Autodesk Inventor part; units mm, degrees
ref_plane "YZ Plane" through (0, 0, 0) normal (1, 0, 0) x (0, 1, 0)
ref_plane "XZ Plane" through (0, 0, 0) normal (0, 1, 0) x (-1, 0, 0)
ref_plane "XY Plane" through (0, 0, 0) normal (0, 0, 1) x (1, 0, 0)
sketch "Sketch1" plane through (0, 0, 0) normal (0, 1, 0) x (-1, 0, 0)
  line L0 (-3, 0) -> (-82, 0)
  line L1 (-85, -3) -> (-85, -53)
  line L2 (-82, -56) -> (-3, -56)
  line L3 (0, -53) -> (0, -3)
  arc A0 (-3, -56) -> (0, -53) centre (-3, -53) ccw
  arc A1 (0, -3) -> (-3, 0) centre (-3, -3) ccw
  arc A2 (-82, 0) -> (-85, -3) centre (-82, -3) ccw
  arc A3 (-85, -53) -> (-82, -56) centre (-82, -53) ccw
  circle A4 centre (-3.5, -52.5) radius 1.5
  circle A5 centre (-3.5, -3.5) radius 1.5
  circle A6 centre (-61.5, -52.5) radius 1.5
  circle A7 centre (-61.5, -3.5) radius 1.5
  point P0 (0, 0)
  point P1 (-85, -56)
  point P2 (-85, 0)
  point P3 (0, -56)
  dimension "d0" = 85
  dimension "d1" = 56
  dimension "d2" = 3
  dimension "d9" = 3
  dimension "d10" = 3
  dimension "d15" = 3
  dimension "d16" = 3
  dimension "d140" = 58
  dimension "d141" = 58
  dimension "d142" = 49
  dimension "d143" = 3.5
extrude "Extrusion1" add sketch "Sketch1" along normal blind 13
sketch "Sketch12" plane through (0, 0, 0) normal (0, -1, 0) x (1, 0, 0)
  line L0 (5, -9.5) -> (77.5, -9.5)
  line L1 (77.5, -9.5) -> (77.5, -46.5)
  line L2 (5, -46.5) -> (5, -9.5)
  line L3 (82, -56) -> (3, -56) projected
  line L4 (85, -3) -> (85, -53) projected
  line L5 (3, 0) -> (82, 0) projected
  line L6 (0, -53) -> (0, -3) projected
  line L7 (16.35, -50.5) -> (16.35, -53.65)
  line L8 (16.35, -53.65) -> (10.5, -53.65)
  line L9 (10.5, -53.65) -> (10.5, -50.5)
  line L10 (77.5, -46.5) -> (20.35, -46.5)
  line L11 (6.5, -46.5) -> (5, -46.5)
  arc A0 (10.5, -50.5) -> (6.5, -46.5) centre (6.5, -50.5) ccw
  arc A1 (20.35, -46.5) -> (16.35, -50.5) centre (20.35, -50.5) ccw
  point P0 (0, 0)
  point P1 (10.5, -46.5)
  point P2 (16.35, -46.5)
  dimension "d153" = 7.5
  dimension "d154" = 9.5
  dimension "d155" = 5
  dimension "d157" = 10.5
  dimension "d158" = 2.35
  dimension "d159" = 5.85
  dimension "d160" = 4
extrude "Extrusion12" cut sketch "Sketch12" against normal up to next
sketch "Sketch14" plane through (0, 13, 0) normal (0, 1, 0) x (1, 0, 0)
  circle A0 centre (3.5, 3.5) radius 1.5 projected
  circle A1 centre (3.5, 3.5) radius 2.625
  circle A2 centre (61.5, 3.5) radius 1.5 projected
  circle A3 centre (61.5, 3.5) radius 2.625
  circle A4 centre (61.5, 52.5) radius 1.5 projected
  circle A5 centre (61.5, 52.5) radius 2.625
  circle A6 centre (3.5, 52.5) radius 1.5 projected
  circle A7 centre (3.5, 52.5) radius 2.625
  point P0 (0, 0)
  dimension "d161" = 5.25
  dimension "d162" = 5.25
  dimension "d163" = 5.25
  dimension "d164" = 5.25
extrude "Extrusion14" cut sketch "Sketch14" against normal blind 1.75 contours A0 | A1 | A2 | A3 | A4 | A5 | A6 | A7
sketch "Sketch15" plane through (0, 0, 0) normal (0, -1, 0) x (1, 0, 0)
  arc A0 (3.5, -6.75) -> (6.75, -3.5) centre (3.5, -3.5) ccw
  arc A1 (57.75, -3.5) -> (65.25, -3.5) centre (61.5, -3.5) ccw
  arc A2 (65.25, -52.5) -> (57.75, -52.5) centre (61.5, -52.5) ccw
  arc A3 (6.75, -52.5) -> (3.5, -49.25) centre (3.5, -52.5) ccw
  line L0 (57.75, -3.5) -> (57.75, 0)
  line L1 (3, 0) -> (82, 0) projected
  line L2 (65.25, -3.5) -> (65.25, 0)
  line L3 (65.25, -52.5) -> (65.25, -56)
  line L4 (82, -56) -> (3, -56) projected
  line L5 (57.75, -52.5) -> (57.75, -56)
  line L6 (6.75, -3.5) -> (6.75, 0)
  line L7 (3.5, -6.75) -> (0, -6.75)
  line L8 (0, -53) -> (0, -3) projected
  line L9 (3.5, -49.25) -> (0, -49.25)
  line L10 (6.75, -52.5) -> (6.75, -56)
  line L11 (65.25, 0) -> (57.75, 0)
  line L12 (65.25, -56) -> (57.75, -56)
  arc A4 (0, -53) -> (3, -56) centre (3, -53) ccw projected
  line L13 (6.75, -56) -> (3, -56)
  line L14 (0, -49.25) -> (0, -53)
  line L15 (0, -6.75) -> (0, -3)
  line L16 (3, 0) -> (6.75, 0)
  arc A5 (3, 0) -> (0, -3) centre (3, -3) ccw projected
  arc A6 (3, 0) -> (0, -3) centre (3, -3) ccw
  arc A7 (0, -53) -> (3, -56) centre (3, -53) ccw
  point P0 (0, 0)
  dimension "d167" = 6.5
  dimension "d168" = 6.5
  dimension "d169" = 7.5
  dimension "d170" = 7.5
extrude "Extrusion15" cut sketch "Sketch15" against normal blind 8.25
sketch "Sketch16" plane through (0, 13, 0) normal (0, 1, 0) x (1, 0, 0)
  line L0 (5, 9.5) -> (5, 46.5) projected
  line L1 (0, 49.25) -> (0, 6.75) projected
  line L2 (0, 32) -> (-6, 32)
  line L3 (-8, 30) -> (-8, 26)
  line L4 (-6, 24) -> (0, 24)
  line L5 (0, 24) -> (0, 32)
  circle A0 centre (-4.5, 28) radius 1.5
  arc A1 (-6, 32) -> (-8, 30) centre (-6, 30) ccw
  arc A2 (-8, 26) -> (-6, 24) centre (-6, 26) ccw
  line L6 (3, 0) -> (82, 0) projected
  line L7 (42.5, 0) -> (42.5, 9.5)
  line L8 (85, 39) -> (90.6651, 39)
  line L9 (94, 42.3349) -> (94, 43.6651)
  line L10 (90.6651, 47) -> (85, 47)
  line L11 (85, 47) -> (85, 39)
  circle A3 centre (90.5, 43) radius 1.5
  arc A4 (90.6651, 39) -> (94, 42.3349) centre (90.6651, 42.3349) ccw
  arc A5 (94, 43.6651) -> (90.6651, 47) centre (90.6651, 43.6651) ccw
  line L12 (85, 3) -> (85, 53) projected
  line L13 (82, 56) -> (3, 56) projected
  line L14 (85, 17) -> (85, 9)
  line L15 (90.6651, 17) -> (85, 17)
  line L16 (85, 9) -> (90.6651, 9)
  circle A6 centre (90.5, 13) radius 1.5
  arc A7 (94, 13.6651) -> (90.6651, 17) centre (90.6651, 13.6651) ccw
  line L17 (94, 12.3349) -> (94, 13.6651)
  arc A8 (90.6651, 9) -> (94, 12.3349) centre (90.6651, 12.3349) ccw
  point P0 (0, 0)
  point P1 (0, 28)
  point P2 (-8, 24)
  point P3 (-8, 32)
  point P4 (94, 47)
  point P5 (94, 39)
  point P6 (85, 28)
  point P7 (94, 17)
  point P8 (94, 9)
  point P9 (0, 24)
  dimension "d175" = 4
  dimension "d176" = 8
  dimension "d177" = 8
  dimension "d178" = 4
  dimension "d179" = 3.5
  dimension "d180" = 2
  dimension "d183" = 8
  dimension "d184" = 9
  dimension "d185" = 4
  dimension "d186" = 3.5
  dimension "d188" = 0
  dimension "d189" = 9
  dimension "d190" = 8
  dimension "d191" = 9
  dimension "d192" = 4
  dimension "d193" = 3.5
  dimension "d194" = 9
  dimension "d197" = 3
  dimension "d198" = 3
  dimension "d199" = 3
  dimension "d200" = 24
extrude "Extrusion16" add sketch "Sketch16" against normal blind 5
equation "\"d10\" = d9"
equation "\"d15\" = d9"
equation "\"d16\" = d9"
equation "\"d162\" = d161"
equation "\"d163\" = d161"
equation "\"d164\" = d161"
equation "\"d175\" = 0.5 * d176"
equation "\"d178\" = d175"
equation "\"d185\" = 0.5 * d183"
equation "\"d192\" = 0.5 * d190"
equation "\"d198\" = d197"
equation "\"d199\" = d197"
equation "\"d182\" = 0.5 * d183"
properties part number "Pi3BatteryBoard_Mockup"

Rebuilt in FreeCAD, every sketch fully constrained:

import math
import FreeCAD as App
import Part
import Sketcher
from FreeCAD import Vector
Q = App.Units.Quantity

doc = App.newDocument("Part")
params = doc.addObject("Spreadsheet::Sheet", "Params")
for row, (alias, value) in enumerate([
    ("sketch1_diameter", "3 mm"),
    ("sketch1_radius", "3 mm"),
    ("pad1_length", "13 mm"),
    ("sketch2_radius", "4 mm"),
    ("sketch2_width", "5.85 mm"),
    ("sketch2_height", "37 mm"),
    ("sketch2_width2", "72.5 mm"),
    ("sketch2_height2", "3.15 mm"),
    ("sketch3_diameter", "5.25 mm"),
    ("pocket2_length", "1.75 mm"),
    ("sketch4_radius", "3.25 mm"),
    ("sketch4_radius2", "3.75 mm"),
    ("sketch4_radius3", "3 mm"),
    ("sketch4_width", "3.5 mm"),
    ("pocket3_length", "8.25 mm"),
    ("sketch5_diameter", "3 mm"),
    ("sketch5_radius", "2 mm"),
    ("sketch5_height", "8 mm"),
    ("pad2_length", "5 mm"),
], start=1):
    params.set(f"A{row}", alias)
    params.set(f"B{row}", "=" + value)
    params.setAlias(f"B{row}", alias)

body = doc.addObject("PartDesign::Body", "Body")

# Sketch on XZ plane
sketch1 = doc.addObject("Sketcher::SketchObject", "Sketch")
body.addObject(sketch1)
sketch1.AttachmentSupport = (doc.XZ_Plane, [""])
sketch1.MapMode = "FlatFace"
sketch1.addGeometry([
    Part.ArcOfCircle(Part.Circle(Vector(3, -3, 0), Vector(0, 0, 1), 3), math.radians(90), math.radians(180)),  # 0
    Part.LineSegment(Vector(3, 0, 0), Vector(82, 0, 0)),  # 1
    Part.ArcOfCircle(Part.Circle(Vector(82, -3, 0), Vector(0, 0, 1), 3), math.radians(0), math.radians(90)),  # 2
    Part.LineSegment(Vector(85, -3, 0), Vector(85, -53, 0)),  # 3
    Part.ArcOfCircle(Part.Circle(Vector(82, -53, 0), Vector(0, 0, 1), 3), math.radians(-90), math.radians(0)),  # 4
    Part.LineSegment(Vector(82, -56, 0), Vector(3, -56, 0)),  # 5
    Part.ArcOfCircle(Part.Circle(Vector(3, -53, 0), Vector(0, 0, 1), 3), math.radians(180), math.radians(270)),  # 6
    Part.LineSegment(Vector(0, -53, 0), Vector(0, -3, 0)),  # 7
    Part.Circle(Vector(61.5, -52.5, 0), Vector(0, 0, 1), 1.5),  # 8
    Part.Circle(Vector(3.5, -52.5, 0), Vector(0, 0, 1), 1.5),  # 9
    Part.Circle(Vector(61.5, -3.5, 0), Vector(0, 0, 1), 1.5),  # 10
    Part.Circle(Vector(3.5, -3.5, 0), Vector(0, 0, 1), 1.5),  # 11
], False)
sketch1.addConstraint([
    Sketcher.Constraint("Tangent", 0, 1, 1, 1),
    Sketcher.Constraint("Tangent", 1, 2, 2, 2),
    Sketcher.Constraint("Tangent", 2, 1, 3, 1),
    Sketcher.Constraint("Tangent", 3, 2, 4, 2),
    Sketcher.Constraint("Tangent", 4, 1, 5, 1),
    Sketcher.Constraint("Tangent", 5, 2, 6, 2),
    Sketcher.Constraint("Tangent", 6, 1, 7, 1),
    Sketcher.Constraint("Tangent", 7, 2, 0, 2),
    Sketcher.Constraint("Horizontal", 1),
    Sketcher.Constraint("Vertical", 3),
    Sketcher.Constraint("Horizontal", 5),
    Sketcher.Constraint("Vertical", 7),
    Sketcher.Constraint("Equal", 0, 2),
    Sketcher.Constraint("Equal", 2, 4),
    Sketcher.Constraint("Equal", 4, 6),
    Sketcher.Constraint("Equal", 8, 9),
    Sketcher.Constraint("Equal", 9, 10),
    Sketcher.Constraint("Equal", 10, 11),
    Sketcher.Constraint("PointOnObject", 0, 1, -1),
    Sketcher.Constraint("PointOnObject", 6, 1, -2),
    Sketcher.Constraint("Horizontal", 8, 3, 9, 3),
    Sketcher.Constraint("Horizontal", 10, 3, 11, 3),
    Sketcher.Constraint("Vertical", 8, 3, 10, 3),
    Sketcher.Constraint("Vertical", 9, 3, 11, 3),
    Sketcher.Constraint("Diameter", 8, Q("3 mm")),
    Sketcher.Constraint("Radius", 0, Q("3 mm")),
    Sketcher.Constraint("DistanceX", -1, 1, 2, 1, Q("85 mm")),
    Sketcher.Constraint("DistanceY", 4, 1, -1, 1, Q("56 mm")),
    Sketcher.Constraint("DistanceX", 9, 3, 8, 3, Q("58 mm")),
    Sketcher.Constraint("DistanceY", 8, 3, 10, 3, Q("49 mm")),
    Sketcher.Constraint("DistanceX", -1, 1, 9, 3, Q("3.5 mm")),
    Sketcher.Constraint("DistanceY", 10, 3, -1, 1, Q("3.5 mm")),
])
sketch1.setExpression("Constraints[24]", "Params.sketch1_diameter")
sketch1.setExpression("Constraints[25]", "Params.sketch1_radius")
pad1 = doc.addObject("PartDesign::Pad", "Pad")
body.addObject(pad1)
pad1.Profile = sketch1
pad1.setExpression("Length", "Params.pad1_length")
pad1.Reversed = True

# Sketch on XZ plane
sketch2 = doc.addObject("Sketcher::SketchObject", "Sketch001")
body.addObject(sketch2)
sketch2.AttachmentSupport = (doc.XZ_Plane, [""])
sketch2.MapMode = "FlatFace"
sketch2.addGeometry([
    Part.LineSegment(Vector(77.5, -9.5, 0), Vector(5, -9.5, 0)),  # 0
    Part.LineSegment(Vector(5, -9.5, 0), Vector(5, -46.5, 0)),  # 1
    Part.LineSegment(Vector(5, -46.5, 0), Vector(6.5, -46.5, 0)),  # 2
    Part.ArcOfCircle(Part.Circle(Vector(6.5, -50.5, 0), Vector(0, 0, 1), 4), math.radians(0), math.radians(90)),  # 3
    Part.LineSegment(Vector(10.5, -50.5, 0), Vector(10.5, -53.65, 0)),  # 4
    Part.LineSegment(Vector(10.5, -53.65, 0), Vector(16.35, -53.65, 0)),  # 5
    Part.LineSegment(Vector(16.35, -53.65, 0), Vector(16.35, -50.5, 0)),  # 6
    Part.ArcOfCircle(Part.Circle(Vector(20.35, -50.5, 0), Vector(0, 0, 1), 4), math.radians(90), math.radians(180)),  # 7
    Part.LineSegment(Vector(20.35, -46.5, 0), Vector(77.5, -46.5, 0)),  # 8
    Part.LineSegment(Vector(77.5, -46.5, 0), Vector(77.5, -9.5, 0)),  # 9
], False)
sketch2.addConstraint([
    Sketcher.Constraint("Coincident", 0, 2, 1, 1),
    Sketcher.Constraint("Coincident", 1, 2, 2, 1),
    Sketcher.Constraint("Tangent", 2, 2, 3, 2),
    Sketcher.Constraint("Tangent", 3, 1, 4, 1),
    Sketcher.Constraint("Coincident", 4, 2, 5, 1),
    Sketcher.Constraint("Coincident", 5, 2, 6, 1),
    Sketcher.Constraint("Tangent", 6, 2, 7, 2),
    Sketcher.Constraint("Tangent", 7, 1, 8, 1),
    Sketcher.Constraint("Coincident", 8, 2, 9, 1),
    Sketcher.Constraint("Coincident", 9, 2, 0, 1),
    Sketcher.Constraint("Horizontal", 0),
    Sketcher.Constraint("Vertical", 1),
    Sketcher.Constraint("Horizontal", 2),
    Sketcher.Constraint("Vertical", 4),
    Sketcher.Constraint("Horizontal", 5),
    Sketcher.Constraint("Vertical", 6),
    Sketcher.Constraint("Horizontal", 8),
    Sketcher.Constraint("Vertical", 9),
    Sketcher.Constraint("Equal", 3, 7),
    Sketcher.Constraint("Horizontal", 3, 3, 7, 3),
    Sketcher.Constraint("Radius", 3, Q("4 mm")),
    Sketcher.Constraint("DistanceX", -1, 1, 0, 2, Q("5 mm")),
    Sketcher.Constraint("DistanceX", 5, 1, 5, 2, Q("5.85 mm")),
    Sketcher.Constraint("DistanceY", 0, 2, -1, 1, Q("9.5 mm")),
    Sketcher.Constraint("DistanceX", -1, 1, 3, 1, Q("10.5 mm")),
    Sketcher.Constraint("DistanceY", 1, 2, 1, 1, Q("37 mm")),
    Sketcher.Constraint("DistanceX", 0, 2, 0, 1, Q("72.5 mm")),
    Sketcher.Constraint("DistanceY", 4, 2, 4, 1, Q("3.15 mm")),
])
sketch2.setExpression("Constraints[20]", "Params.sketch2_radius")
sketch2.setExpression("Constraints[22]", "Params.sketch2_width")
sketch2.setExpression("Constraints[25]", "Params.sketch2_height")
sketch2.setExpression("Constraints[26]", "Params.sketch2_width2")
sketch2.setExpression("Constraints[27]", "Params.sketch2_height2")
pocket1 = doc.addObject("PartDesign::Pocket", "Pocket")
body.addObject(pocket1)
pocket1.Profile = sketch2
pocket1.Type = "UpToFirst"

# Sketch on XZ plane
sketch3 = doc.addObject("Sketcher::SketchObject", "Sketch002")
body.addObject(sketch3)
sketch3.AttachmentSupport = (doc.XZ_Plane, [""])
sketch3.MapMode = "FlatFace"
sketch3.AttachmentOffset = App.Placement(Vector(0, 0, -13), App.Rotation())
sketch3.addGeometry([
    Part.Circle(Vector(3.5, -3.5, 0), Vector(0, 0, 1), 2.625),
    Part.Circle(Vector(61.5, -3.5, 0), Vector(0, 0, 1), 2.625),
    Part.Circle(Vector(61.5, -52.5, 0), Vector(0, 0, 1), 2.625),
    Part.Circle(Vector(3.5, -52.5, 0), Vector(0, 0, 1), 2.625),
], False)
sketch3.addConstraint([
    Sketcher.Constraint("Equal", 0, 1),
    Sketcher.Constraint("Equal", 1, 2),
    Sketcher.Constraint("Equal", 2, 3),
    Sketcher.Constraint("Horizontal", 0, 3, 1, 3),
    Sketcher.Constraint("Horizontal", 2, 3, 3, 3),
    Sketcher.Constraint("Vertical", 1, 3, 2, 3),
    Sketcher.Constraint("Vertical", 0, 3, 3, 3),
    Sketcher.Constraint("Diameter", 0, Q("5.25 mm")),
    Sketcher.Constraint("DistanceX", 0, 3, 1, 3, Q("58 mm")),
    Sketcher.Constraint("DistanceY", 2, 3, 1, 3, Q("49 mm")),
    Sketcher.Constraint("DistanceX", -1, 1, 0, 3, Q("3.5 mm")),
    Sketcher.Constraint("DistanceY", 0, 3, -1, 1, Q("3.5 mm")),
])
sketch3.setExpression("Constraints[7]", "Params.sketch3_diameter")
pocket2 = doc.addObject("PartDesign::Pocket", "Pocket001")
body.addObject(pocket2)
pocket2.Profile = sketch3
pocket2.setExpression("Length", "Params.pocket2_length")
pocket2.Reversed = True

# Sketch on XZ plane
sketch4 = doc.addObject("Sketcher::SketchObject", "Sketch003")
body.addObject(sketch4)
sketch4.AttachmentSupport = (doc.XZ_Plane, [""])
sketch4.MapMode = "FlatFace"
sketch4.addGeometry([
    Part.LineSegment(Vector(0, -6.75, 0), Vector(3.5, -6.75, 0)),  # 0
    Part.ArcOfCircle(Part.Circle(Vector(3.5, -3.5, 0), Vector(0, 0, 1), 3.25), math.radians(-90), math.radians(0)),  # 1
    Part.LineSegment(Vector(6.75, -3.5, 0), Vector(6.75, 0, 0)),  # 2
    Part.LineSegment(Vector(6.75, 0, 0), Vector(3, 0, 0)),  # 3
    Part.ArcOfCircle(Part.Circle(Vector(3, -3, 0), Vector(0, 0, 1), 3), math.radians(90), math.radians(180)),  # 4
    Part.LineSegment(Vector(0, -3, 0), Vector(0, -6.75, 0)),  # 5
    Part.LineSegment(Vector(57.75, -52.5, 0), Vector(57.75, -56, 0)),  # 6
    Part.LineSegment(Vector(57.75, -56, 0), Vector(65.25, -56, 0)),  # 7
    Part.LineSegment(Vector(65.25, -56, 0), Vector(65.25, -52.5, 0)),  # 8
    Part.ArcOfCircle(Part.Circle(Vector(61.5, -52.5, 0), Vector(0, 0, 1), 3.75), math.radians(0), math.radians(180)),  # 9
    Part.LineSegment(Vector(3.5, -49.25, 0), Vector(0, -49.25, 0)),  # 10
    Part.LineSegment(Vector(0, -49.25, 0), Vector(0, -53, 0)),  # 11
    Part.ArcOfCircle(Part.Circle(Vector(3, -53, 0), Vector(0, 0, 1), 3), math.radians(180), math.radians(270)),  # 12
    Part.LineSegment(Vector(3, -56, 0), Vector(6.75, -56, 0)),  # 13
    Part.LineSegment(Vector(6.75, -56, 0), Vector(6.75, -52.5, 0)),  # 14
    Part.ArcOfCircle(Part.Circle(Vector(3.5, -52.5, 0), Vector(0, 0, 1), 3.25), math.radians(0), math.radians(90)),  # 15
    Part.LineSegment(Vector(65.25, 0, 0), Vector(57.75, 0, 0)),  # 16
    Part.LineSegment(Vector(57.75, 0, 0), Vector(57.75, -3.5, 0)),  # 17
    Part.ArcOfCircle(Part.Circle(Vector(61.5, -3.5, 0), Vector(0, 0, 1), 3.75), math.radians(180), math.radians(360)),  # 18
    Part.LineSegment(Vector(65.25, -3.5, 0), Vector(65.25, 0, 0)),  # 19
], False)
sketch4.addConstraint([
    Sketcher.Constraint("Tangent", 0, 2, 1, 1),
    Sketcher.Constraint("Tangent", 1, 2, 2, 1),
    Sketcher.Constraint("Coincident", 2, 2, 3, 1),
    Sketcher.Constraint("Tangent", 3, 2, 4, 1),
    Sketcher.Constraint("Tangent", 4, 2, 5, 1),
    Sketcher.Constraint("Coincident", 5, 2, 0, 1),
    Sketcher.Constraint("Coincident", 6, 2, 7, 1),
    Sketcher.Constraint("Coincident", 7, 2, 8, 1),
    Sketcher.Constraint("Tangent", 8, 2, 9, 1),
    Sketcher.Constraint("Tangent", 9, 2, 6, 1),
    Sketcher.Constraint("Coincident", 10, 2, 11, 1),
    Sketcher.Constraint("Tangent", 11, 2, 12, 1),
    Sketcher.Constraint("Tangent", 12, 2, 13, 1),
    Sketcher.Constraint("Coincident", 13, 2, 14, 1),
    Sketcher.Constraint("Tangent", 14, 2, 15, 1),
    Sketcher.Constraint("Tangent", 15, 2, 10, 1),
    Sketcher.Constraint("Coincident", 16, 2, 17, 1),
    Sketcher.Constraint("Tangent", 17, 2, 18, 1),
    Sketcher.Constraint("Tangent", 18, 2, 19, 1),
    Sketcher.Constraint("Coincident", 19, 2, 16, 1),
    Sketcher.Constraint("Horizontal", 0),
    Sketcher.Constraint("Vertical", 2),
    Sketcher.Constraint("Horizontal", 3),
    Sketcher.Constraint("Vertical", 5),
    Sketcher.Constraint("Vertical", 6),
    Sketcher.Constraint("Horizontal", 7),
    Sketcher.Constraint("Vertical", 8),
    Sketcher.Constraint("Horizontal", 10),
    Sketcher.Constraint("Vertical", 11),
    Sketcher.Constraint("Horizontal", 13),
    Sketcher.Constraint("Vertical", 14),
    Sketcher.Constraint("Horizontal", 16),
    Sketcher.Constraint("Vertical", 17),
    Sketcher.Constraint("Vertical", 19),
    Sketcher.Constraint("Equal", 4, 12),
    Sketcher.Constraint("Equal", 1, 15),
    Sketcher.Constraint("Equal", 9, 18),
    Sketcher.Constraint("PointOnObject", 2, 2, -1),
    Sketcher.Constraint("PointOnObject", 4, 2, -2),
    Sketcher.Constraint("PointOnObject", 10, 2, -2),
    Sketcher.Constraint("PointOnObject", 16, 2, -1),
    Sketcher.Constraint("Horizontal", 9, 3, 15, 3),
    Sketcher.Constraint("Horizontal", 1, 3, 18, 3),
    Sketcher.Constraint("Horizontal", 7, 2, 12, 2),
    Sketcher.Constraint("Vertical", 1, 3, 15, 3),
    Sketcher.Constraint("Vertical", 9, 3, 18, 3),
    Sketcher.Constraint("Equal", 10, 2),
    Sketcher.Constraint("Equal", 2, 6),
    Sketcher.Constraint("Radius", 1, Q("3.25 mm")),
    Sketcher.Constraint("Radius", 9, Q("3.75 mm")),
    Sketcher.Constraint("Radius", 4, Q("3 mm")),
    Sketcher.Constraint("DistanceX", 0, 1, 0, 2, Q("3.5 mm")),
    Sketcher.Constraint("DistanceY", 12, 3, -1, 1, Q("53 mm")),
    Sketcher.Constraint("DistanceX", 1, 3, 9, 3, Q("58 mm")),
])
sketch4.setExpression("Constraints[48]", "Params.sketch4_radius")
sketch4.setExpression("Constraints[49]", "Params.sketch4_radius2")
sketch4.setExpression("Constraints[50]", "Params.sketch4_radius3")
sketch4.setExpression("Constraints[51]", "Params.sketch4_width")
pocket3 = doc.addObject("PartDesign::Pocket", "Pocket002")
body.addObject(pocket3)
pocket3.Profile = sketch4
pocket3.setExpression("Length", "Params.pocket3_length")

# Sketch on XZ plane
sketch5 = doc.addObject("Sketcher::SketchObject", "Sketch004")
body.addObject(sketch5)
sketch5.AttachmentSupport = (doc.XZ_Plane, [""])
sketch5.MapMode = "FlatFace"
sketch5.AttachmentOffset = App.Placement(Vector(0, 0, -13), App.Rotation())
sketch5.addGeometry([
    Part.LineSegment(Vector(0, -24, 0), Vector(0, -32, 0)),  # 0
    Part.LineSegment(Vector(0, -32, 0), Vector(-6, -32, 0)),  # 1
    Part.ArcOfCircle(Part.Circle(Vector(-6, -30, 0), Vector(0, 0, 1), 2), math.radians(180), math.radians(270)),  # 2
    Part.LineSegment(Vector(-8, -30, 0), Vector(-8, -26, 0)),  # 3
    Part.ArcOfCircle(Part.Circle(Vector(-6, -26, 0), Vector(0, 0, 1), 2), math.radians(90), math.radians(180)),  # 4
    Part.LineSegment(Vector(-6, -24, 0), Vector(0, -24, 0)),  # 5
    Part.Circle(Vector(-4.5, -28, 0), Vector(0, 0, 1), 1.5),  # 6
    Part.LineSegment(Vector(85, -47, 0), Vector(85, -39, 0)),  # 7
    Part.LineSegment(Vector(85, -39, 0), Vector(90.6651, -39, 0)),  # 8
    Part.ArcOfCircle(Part.Circle(Vector(90.6651, -42.3349, 0), Vector(0, 0, 1), 3.3349), math.radians(0), math.radians(90)),  # 9
    Part.LineSegment(Vector(94, -42.3349, 0), Vector(94, -43.6651, 0)),  # 10
    Part.ArcOfCircle(Part.Circle(Vector(90.6651, -43.6651, 0), Vector(0, 0, 1), 3.3349), math.radians(-90), math.radians(0)),  # 11
    Part.LineSegment(Vector(90.6651, -47, 0), Vector(85, -47, 0)),  # 12
    Part.Circle(Vector(90.5, -43, 0), Vector(0, 0, 1), 1.5),  # 13
    Part.LineSegment(Vector(90.6651, -17, 0), Vector(85, -17, 0)),  # 14
    Part.LineSegment(Vector(85, -17, 0), Vector(85, -9, 0)),  # 15
    Part.LineSegment(Vector(85, -9, 0), Vector(90.6651, -9, 0)),  # 16
    Part.ArcOfCircle(Part.Circle(Vector(90.6651, -12.3349, 0), Vector(0, 0, 1), 3.3349), math.radians(0), math.radians(90)),  # 17
    Part.LineSegment(Vector(94, -12.3349, 0), Vector(94, -13.6651, 0)),  # 18
    Part.ArcOfCircle(Part.Circle(Vector(90.6651, -13.6651, 0), Vector(0, 0, 1), 3.3349), math.radians(-90), math.radians(0)),  # 19
    Part.Circle(Vector(90.5, -13, 0), Vector(0, 0, 1), 1.5),  # 20
], False)
sketch5.addConstraint([
    Sketcher.Constraint("Coincident", 0, 2, 1, 1),
    Sketcher.Constraint("Tangent", 1, 2, 2, 2),
    Sketcher.Constraint("Tangent", 2, 1, 3, 1),
    Sketcher.Constraint("Tangent", 3, 2, 4, 2),
    Sketcher.Constraint("Tangent", 4, 1, 5, 1),
    Sketcher.Constraint("Coincident", 5, 2, 0, 1),
    Sketcher.Constraint("Coincident", 7, 2, 8, 1),
    Sketcher.Constraint("Tangent", 8, 2, 9, 2),
    Sketcher.Constraint("Tangent", 9, 1, 10, 1),
    Sketcher.Constraint("Tangent", 10, 2, 11, 2),
    Sketcher.Constraint("Tangent", 11, 1, 12, 1),
    Sketcher.Constraint("Coincident", 12, 2, 7, 1),
    Sketcher.Constraint("Coincident", 14, 2, 15, 1),
    Sketcher.Constraint("Coincident", 15, 2, 16, 1),
    Sketcher.Constraint("Tangent", 16, 2, 17, 2),
    Sketcher.Constraint("Tangent", 17, 1, 18, 1),
    Sketcher.Constraint("Tangent", 18, 2, 19, 2),
    Sketcher.Constraint("Tangent", 19, 1, 14, 1),
    Sketcher.Constraint("Vertical", 0),
    Sketcher.Constraint("Horizontal", 1),
    Sketcher.Constraint("Vertical", 3),
    Sketcher.Constraint("Horizontal", 5),
    Sketcher.Constraint("Vertical", 7),
    Sketcher.Constraint("Horizontal", 8),
    Sketcher.Constraint("Vertical", 10),
    Sketcher.Constraint("Horizontal", 12),
    Sketcher.Constraint("Horizontal", 14),
    Sketcher.Constraint("Vertical", 15),
    Sketcher.Constraint("Horizontal", 16),
    Sketcher.Constraint("Vertical", 18),
    Sketcher.Constraint("Equal", 2, 4),
    Sketcher.Constraint("Equal", 9, 11),
    Sketcher.Constraint("Equal", 6, 13),
    Sketcher.Constraint("Equal", 11, 17),
    Sketcher.Constraint("Equal", 17, 19),
    Sketcher.Constraint("Equal", 13, 20),
    Sketcher.Constraint("PointOnObject", 0, 2, -2),
    Sketcher.Constraint("Vertical", 11, 3, 17, 3),
    Sketcher.Constraint("Vertical", 13, 3, 20, 3),
    Sketcher.Constraint("Vertical", 12, 2, 14, 2),
    Sketcher.Constraint("Equal", 0, 7),
    Sketcher.Constraint("Equal", 7, 15),
    Sketcher.Constraint("Diameter", 6, Q("3 mm")),
    Sketcher.Constraint("Radius", 2, Q("2 mm")),
    Sketcher.Constraint("DistanceY", 0, 2, 0, 1, Q("8 mm")),
    Sketcher.Constraint("DistanceX", 2, 1, -1, 1, Q("8 mm")),
    Sketcher.Constraint("DistanceY", 4, 1, -1, 1, Q("24 mm")),
    Sketcher.Constraint("DistanceY", 15, 2, -1, 1, Q("9 mm")),
    Sketcher.Constraint("DistanceY", 2, 3, 6, 3, Q("2 mm")),
    Sketcher.Constraint("DistanceY", 13, 3, 7, 2, Q("4 mm")),
    Sketcher.Constraint("DistanceX", 7, 2, 9, 1, Q("9 mm")),
    Sketcher.Constraint("DistanceY", 14, 2, 20, 3, Q("4 mm")),
    Sketcher.Constraint("DistanceX", 2, 1, 6, 3, Q("3.5 mm")),
    Sketcher.Constraint("DistanceX", 13, 3, 9, 1, Q("3.5 mm")),
    Sketcher.Constraint("DistanceY", 13, 3, -1, 1, Q("43 mm")),
    Sketcher.Constraint("DistanceX", -1, 1, 7, 2, Q("85 mm")),
    Sketcher.Constraint("Radius", 9, Q("3.335 mm")),
])
sketch5.setExpression("Constraints[42]", "Params.sketch5_diameter")
sketch5.setExpression("Constraints[43]", "Params.sketch5_radius")
sketch5.setExpression("Constraints[44]", "Params.sketch5_height")
pad2 = doc.addObject("PartDesign::Pad", "Pad001")
body.addObject(pad2)
pad2.Profile = sketch5
pad2.setExpression("Length", "Params.pad2_length")

doc.recompute()
